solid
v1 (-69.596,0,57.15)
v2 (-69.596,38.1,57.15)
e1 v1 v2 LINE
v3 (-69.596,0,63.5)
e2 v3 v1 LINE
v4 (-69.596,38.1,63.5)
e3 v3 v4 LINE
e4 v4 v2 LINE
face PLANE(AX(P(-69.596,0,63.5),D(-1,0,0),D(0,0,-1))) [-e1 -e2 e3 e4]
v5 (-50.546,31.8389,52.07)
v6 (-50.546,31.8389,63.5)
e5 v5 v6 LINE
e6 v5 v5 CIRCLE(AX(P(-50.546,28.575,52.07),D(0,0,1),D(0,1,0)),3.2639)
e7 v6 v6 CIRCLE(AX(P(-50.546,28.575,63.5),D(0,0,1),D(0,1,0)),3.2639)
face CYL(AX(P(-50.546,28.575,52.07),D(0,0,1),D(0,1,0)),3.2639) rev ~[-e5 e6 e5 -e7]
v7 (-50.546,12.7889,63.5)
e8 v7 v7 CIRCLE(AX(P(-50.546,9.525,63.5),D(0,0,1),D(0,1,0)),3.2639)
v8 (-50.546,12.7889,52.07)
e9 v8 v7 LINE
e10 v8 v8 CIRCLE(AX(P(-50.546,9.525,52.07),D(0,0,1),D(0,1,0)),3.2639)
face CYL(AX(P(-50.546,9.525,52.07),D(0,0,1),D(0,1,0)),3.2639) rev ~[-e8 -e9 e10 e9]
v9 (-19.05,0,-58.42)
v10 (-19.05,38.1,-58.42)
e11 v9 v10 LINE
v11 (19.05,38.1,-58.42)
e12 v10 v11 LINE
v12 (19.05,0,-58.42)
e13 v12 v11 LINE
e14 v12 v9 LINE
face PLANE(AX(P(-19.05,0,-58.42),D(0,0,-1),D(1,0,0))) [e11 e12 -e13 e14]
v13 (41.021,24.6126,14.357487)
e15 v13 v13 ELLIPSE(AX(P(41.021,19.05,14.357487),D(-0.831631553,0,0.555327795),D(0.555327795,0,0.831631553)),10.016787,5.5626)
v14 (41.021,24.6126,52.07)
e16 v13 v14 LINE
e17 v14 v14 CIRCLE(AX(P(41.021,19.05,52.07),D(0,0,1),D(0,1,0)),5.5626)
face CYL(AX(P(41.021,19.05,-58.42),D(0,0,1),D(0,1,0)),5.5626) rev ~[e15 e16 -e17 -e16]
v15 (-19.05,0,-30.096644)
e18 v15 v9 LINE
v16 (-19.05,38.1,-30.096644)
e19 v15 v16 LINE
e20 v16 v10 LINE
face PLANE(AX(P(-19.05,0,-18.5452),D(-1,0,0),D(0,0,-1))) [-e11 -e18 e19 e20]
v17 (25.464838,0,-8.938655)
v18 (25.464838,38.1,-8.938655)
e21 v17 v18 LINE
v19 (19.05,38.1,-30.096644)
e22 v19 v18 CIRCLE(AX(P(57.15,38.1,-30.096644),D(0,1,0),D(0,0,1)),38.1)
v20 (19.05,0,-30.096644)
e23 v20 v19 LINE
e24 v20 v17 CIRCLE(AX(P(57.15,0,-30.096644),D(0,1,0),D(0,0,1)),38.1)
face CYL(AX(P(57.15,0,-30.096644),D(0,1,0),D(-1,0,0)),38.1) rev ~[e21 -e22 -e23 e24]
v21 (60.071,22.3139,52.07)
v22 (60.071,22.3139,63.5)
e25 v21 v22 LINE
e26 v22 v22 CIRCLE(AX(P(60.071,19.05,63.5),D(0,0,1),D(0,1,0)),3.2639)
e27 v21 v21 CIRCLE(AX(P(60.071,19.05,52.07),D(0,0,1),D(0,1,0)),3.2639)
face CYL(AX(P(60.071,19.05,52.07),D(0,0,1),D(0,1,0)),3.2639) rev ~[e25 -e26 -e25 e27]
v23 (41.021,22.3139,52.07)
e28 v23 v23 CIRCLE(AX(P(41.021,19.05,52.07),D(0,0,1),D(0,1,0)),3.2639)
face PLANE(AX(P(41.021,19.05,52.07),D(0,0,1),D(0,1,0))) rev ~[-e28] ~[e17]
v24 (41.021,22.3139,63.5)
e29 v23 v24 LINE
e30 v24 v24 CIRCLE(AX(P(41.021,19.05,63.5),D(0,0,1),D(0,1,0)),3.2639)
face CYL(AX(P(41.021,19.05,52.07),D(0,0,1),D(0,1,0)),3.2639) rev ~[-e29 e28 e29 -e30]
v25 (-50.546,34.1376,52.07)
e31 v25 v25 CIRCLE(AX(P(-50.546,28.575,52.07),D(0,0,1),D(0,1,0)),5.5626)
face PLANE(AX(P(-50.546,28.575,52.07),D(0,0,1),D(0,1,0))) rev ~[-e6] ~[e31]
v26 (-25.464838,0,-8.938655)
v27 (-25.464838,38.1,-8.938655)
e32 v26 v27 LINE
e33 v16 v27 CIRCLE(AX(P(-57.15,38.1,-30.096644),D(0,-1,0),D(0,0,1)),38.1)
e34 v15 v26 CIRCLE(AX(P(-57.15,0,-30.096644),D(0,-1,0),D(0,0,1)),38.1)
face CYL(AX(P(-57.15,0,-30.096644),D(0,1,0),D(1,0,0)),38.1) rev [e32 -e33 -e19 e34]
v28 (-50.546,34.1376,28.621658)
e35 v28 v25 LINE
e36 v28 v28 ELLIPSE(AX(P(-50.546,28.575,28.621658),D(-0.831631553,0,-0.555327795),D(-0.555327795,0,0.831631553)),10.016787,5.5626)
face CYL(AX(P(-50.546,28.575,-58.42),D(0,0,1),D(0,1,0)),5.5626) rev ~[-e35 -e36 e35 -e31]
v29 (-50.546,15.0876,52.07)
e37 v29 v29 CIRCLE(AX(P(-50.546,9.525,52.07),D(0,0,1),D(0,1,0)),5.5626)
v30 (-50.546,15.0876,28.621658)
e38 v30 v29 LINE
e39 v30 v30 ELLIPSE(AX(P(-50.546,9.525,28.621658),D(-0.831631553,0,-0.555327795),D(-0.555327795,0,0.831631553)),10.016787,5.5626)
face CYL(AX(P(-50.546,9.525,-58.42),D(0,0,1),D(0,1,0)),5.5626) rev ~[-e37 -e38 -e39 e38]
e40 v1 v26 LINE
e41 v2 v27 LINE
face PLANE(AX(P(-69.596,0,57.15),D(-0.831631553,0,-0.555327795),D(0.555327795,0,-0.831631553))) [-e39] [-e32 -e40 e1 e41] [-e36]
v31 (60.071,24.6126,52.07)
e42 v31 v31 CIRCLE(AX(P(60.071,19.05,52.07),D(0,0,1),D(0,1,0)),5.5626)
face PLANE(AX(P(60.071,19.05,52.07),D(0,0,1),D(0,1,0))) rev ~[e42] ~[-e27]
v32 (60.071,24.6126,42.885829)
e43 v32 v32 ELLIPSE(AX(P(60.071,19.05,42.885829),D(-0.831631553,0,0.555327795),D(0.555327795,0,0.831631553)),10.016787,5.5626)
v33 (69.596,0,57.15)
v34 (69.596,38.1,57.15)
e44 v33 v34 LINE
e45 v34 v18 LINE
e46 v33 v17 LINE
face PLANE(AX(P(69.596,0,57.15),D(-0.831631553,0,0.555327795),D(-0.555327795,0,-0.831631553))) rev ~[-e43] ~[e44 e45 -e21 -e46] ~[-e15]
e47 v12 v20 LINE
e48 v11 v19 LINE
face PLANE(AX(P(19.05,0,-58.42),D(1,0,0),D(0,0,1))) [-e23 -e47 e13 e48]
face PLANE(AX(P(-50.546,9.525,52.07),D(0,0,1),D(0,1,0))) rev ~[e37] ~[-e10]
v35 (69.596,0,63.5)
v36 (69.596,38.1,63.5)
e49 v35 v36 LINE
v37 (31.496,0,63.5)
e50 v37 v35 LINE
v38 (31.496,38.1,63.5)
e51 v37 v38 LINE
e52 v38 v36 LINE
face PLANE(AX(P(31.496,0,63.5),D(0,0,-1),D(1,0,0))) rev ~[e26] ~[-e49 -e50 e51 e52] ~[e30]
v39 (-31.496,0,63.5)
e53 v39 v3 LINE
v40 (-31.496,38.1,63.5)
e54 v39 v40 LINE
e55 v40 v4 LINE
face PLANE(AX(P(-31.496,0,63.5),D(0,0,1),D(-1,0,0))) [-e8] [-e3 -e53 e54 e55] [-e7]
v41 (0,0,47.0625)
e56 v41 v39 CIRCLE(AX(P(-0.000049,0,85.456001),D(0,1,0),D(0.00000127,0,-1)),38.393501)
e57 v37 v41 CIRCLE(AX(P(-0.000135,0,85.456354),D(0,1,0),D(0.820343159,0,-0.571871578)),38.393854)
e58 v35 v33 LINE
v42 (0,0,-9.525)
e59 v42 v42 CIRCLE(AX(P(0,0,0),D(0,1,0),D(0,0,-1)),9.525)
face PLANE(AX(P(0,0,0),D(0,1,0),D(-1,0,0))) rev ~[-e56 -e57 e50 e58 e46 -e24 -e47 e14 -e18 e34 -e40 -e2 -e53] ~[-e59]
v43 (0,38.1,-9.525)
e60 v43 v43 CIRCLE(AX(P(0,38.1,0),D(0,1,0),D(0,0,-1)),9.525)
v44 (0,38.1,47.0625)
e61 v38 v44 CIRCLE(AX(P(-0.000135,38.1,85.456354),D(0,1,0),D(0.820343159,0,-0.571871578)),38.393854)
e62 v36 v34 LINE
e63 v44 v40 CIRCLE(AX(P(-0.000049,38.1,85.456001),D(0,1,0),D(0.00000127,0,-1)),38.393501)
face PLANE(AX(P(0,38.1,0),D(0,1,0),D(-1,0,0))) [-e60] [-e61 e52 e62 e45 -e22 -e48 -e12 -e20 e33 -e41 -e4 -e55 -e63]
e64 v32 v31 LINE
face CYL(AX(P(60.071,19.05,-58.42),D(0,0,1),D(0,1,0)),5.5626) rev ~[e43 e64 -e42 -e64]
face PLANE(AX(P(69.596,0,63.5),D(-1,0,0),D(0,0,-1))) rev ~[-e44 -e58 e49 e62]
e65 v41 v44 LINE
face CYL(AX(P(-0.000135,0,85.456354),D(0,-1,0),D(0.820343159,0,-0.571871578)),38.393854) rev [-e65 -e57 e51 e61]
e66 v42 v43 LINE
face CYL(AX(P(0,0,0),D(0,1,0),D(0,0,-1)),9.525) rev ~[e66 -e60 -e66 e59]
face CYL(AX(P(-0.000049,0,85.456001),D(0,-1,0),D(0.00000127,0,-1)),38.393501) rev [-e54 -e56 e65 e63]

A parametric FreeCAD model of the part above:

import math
import FreeCAD as App
import Part
import Sketcher

V = App.Vector
Q = App.Units.Quantity


def edges_at(feature, points):
    """Names of the edges that pass closest to the given points."""
    edges = feature.Shape.Edges
    near = lambda p: min(range(len(edges)), key=lambda i: edges[i].distToShape(Part.Vertex(*p))[0])
    return sorted({f"Edge{near(p) + 1}" for p in points})

doc = App.newDocument("Part")
body = doc.addObject("PartDesign::Body", "Body")

sketch1 = body.newObject("Sketcher::SketchObject", "Sketch")
sketch1.AttachmentSupport = (doc.getObject("XZ_Plane"), [""])
sketch1.MapMode = "FlatFace"
sketch1.addGeometry(Part.LineSegment(V(-19, -58, 0), V(-19, -19, 0)), False)
sketch1.addGeometry(Part.LineSegment(V(-19, -19, 0), V(-70, 57, 0)), False)
sketch1.addGeometry(Part.LineSegment(V(-70, 57, 0), V(-70, 64, 0)), False)
sketch1.addGeometry(Part.LineSegment(V(-70, 64, 0), V(-31, 64, 0)), False)
sketch1.addGeometry(Part.ArcOfCircle(Part.Circle(V(0, 85, 0), V(0, 0, 1), 38), math.radians(-145), math.radians(-90)), False)
sketch1.addGeometry(Part.ArcOfCircle(Part.Circle(V(0, 85, 0), V(0, 0, 1), 38), math.radians(-90), math.radians(-35)), False)
sketch1.addGeometry(Part.LineSegment(V(31, 64, 0), V(70, 64, 0)), False)
sketch1.addGeometry(Part.LineSegment(V(70, 64, 0), V(70, 57, 0)), False)
sketch1.addGeometry(Part.LineSegment(V(70, 57, 0), V(19, -19, 0)), False)
sketch1.addGeometry(Part.LineSegment(V(19, -19, 0), V(19, -58, 0)), False)
sketch1.addGeometry(Part.LineSegment(V(19, -58, 0), V(-19, -58, 0)), False)
sketch1.addConstraint(Sketcher.Constraint("Coincident", 0, 2, 1, 1))
sketch1.addConstraint(Sketcher.Constraint("Coincident", 1, 2, 2, 1))
sketch1.addConstraint(Sketcher.Constraint("Coincident", 2, 2, 3, 1))
sketch1.addConstraint(Sketcher.Constraint("Coincident", 3, 2, 4, 1))
sketch1.addConstraint(Sketcher.Constraint("Tangent", 4, 2, 5, 1))
sketch1.addConstraint(Sketcher.Constraint("Coincident", 5, 2, 6, 1))
sketch1.addConstraint(Sketcher.Constraint("Coincident", 6, 2, 7, 1))
sketch1.addConstraint(Sketcher.Constraint("Coincident", 7, 2, 8, 1))
sketch1.addConstraint(Sketcher.Constraint("Coincident", 8, 2, 9, 1))
sketch1.addConstraint(Sketcher.Constraint("Coincident", 9, 2, 10, 1))
sketch1.addConstraint(Sketcher.Constraint("Coincident", 10, 2, 0, 1))
sketch1.addConstraint(Sketcher.Constraint("Vertical", 0))
sketch1.addConstraint(Sketcher.Constraint("Vertical", 2))
sketch1.addConstraint(Sketcher.Constraint("Horizontal", 3))
sketch1.addConstraint(Sketcher.Constraint("Horizontal", 6))
sketch1.addConstraint(Sketcher.Constraint("Vertical", 7))
sketch1.addConstraint(Sketcher.Constraint("Vertical", 9))
sketch1.addConstraint(Sketcher.Constraint("Horizontal", 10))
sketch1.addConstraint(Sketcher.Constraint("Equal", 4, 5))
sketch1.addConstraint(Sketcher.Constraint("Symmetric", 3, 2, 5, 2, -2))
sketch1.addConstraint(Sketcher.Constraint("Symmetric", 1, 2, 7, 2, -2))
sketch1.addConstraint(Sketcher.Constraint("Symmetric", 0, 2, 8, 2, -2))
sketch1.addConstraint(Sketcher.Constraint("PointOnObject", 4, 2, -2))
sketch1.addConstraint(Sketcher.Constraint("Equal", 6, 10))
sketch1.addConstraint(Sketcher.Constraint("DistanceX", 3, 1, 3, 2, Q("1.5 in")))
sketch1.addConstraint(Sketcher.Constraint("DistanceY", 2, 1, 2, 2, Q("0.25 in")))
sketch1.addConstraint(Sketcher.Constraint("DistanceY", -1, 1, 2, 2, Q("2.5 in")))
sketch1.addConstraint(Sketcher.Constraint("DistanceY", 9, 2, -1, 1, Q("2.3 in")))
sketch1.addConstraint(Sketcher.Constraint("DistanceX", 1, 2, -1, 1, Q("2.74 in")))
sketch1.addConstraint(Sketcher.Constraint("Radius", 4, Q("38.3937 mm")))
sketch1.addConstraint(Sketcher.Constraint("DistanceY", 0, 1, 0, 2, Q("39.8748 mm")))
pad1 = body.newObject("PartDesign::Pad", "Pad")
pad1.Profile = sketch1
pad1.Length = Q("1.5 in")
pad1.Reversed = True

sketch2 = body.newObject("Sketcher::SketchObject", "Sketch001")
sketch2.AttachmentSupport = (doc.getObject("XZ_Plane"), [""])
sketch2.MapMode = "FlatFace"
sketch2.addGeometry(Part.Circle(V(0, 0, 0), V(0, 0, 1), 10), False)
sketch2.addConstraint(Sketcher.Constraint("Coincident", 0, 3, -1, 1))
sketch2.addConstraint(Sketcher.Constraint("Diameter", 0, Q("0.75 in")))
doc.recompute()
hole = body.newObject("PartDesign::Hole", "Hole")
hole.Profile = sketch2
hole.ThreadType = "None"
hole.Diameter = Q("0.75 in")
hole.DepthType = "ThroughAll"

sketch3 = body.newObject("Sketcher::SketchObject", "Sketch002")
sketch3.AttachmentSupport = (doc.getObject("XY_Plane"), [""])
sketch3.MapMode = "FlatFace"
sketch3.AttachmentOffset = App.Placement(V(0, 0, -2.3 * 25.4), App.Rotation())
sketch3.addGeometry(Part.Circle(V(60.1, 19.1, 0), V(0, 0, 1), 3.3), False)
sketch3.addGeometry(Part.Circle(V(41, 19.1, 0), V(0, 0, 1), 3.3), False)
sketch3.addGeometry(Part.Circle(V(-50.5, 28.6, 0), V(0, 0, 1), 3.3), False)
sketch3.addGeometry(Part.Circle(V(-50.5, 9.5, 0), V(0, 0, 1), 3.3), False)
sketch3.addConstraint(Sketcher.Constraint("Equal", 0, 1))
sketch3.addConstraint(Sketcher.Constraint("Equal", 1, 2))
sketch3.addConstraint(Sketcher.Constraint("Equal", 2, 3))
sketch3.addConstraint(Sketcher.Constraint("Horizontal", 0, 3, 1, 3))
sketch3.addConstraint(Sketcher.Constraint("Vertical", 2, 3, 3, 3))
sketch3.addConstraint(Sketcher.Constraint("Diameter", 0, Q("0.257 in")))
sketch3.addConstraint(Sketcher.Constraint("DistanceY", -1, 1, 0, 3, Q("0.75 in")))
sketch3.addConstraint(Sketcher.Constraint("DistanceX", 2, 3, -1, 1, Q("1.99 in")))
sketch3.addConstraint(Sketcher.Constraint("DistanceX", 1, 3, 0, 3, Q("0.75 in")))
sketch3.addConstraint(Sketcher.Constraint("DistanceY", 3, 3, 2, 3, Q("0.75 in")))
sketch3.addConstraint(Sketcher.Constraint("DistanceX", -1, 1, 0, 3, Q("2.365 in")))
sketch3.addConstraint(Sketcher.Constraint("DistanceY", -1, 1, 2, 3, Q("1.125 in")))
doc.recompute()
hole2 = body.newObject("PartDesign::Hole", "Hole001")
hole2.Profile = sketch3
hole2.ThreadType = "None"
hole2.Diameter = Q("0.257 in")
hole2.DepthType = "Dimension"
hole2.Depth = Q("4.8 in")
hole2.DrillPoint = "Flat"
hole2.HoleCutType = "Counterbore"
hole2.HoleCutDiameter = Q("0.438 in")
hole2.HoleCutDepth = Q("4.35 in")
hole2.Reversed = True
doc.recompute()

fillet = body.newObject("PartDesign::Fillet", "Fillet")
fillet.Base = (hole2, edges_at(hole2, [(19.05, 19.05, -18.545), (-19.05, 19.05, -18.545)]))
fillet.Radius = Q("1.5 in")

doc.recompute()
